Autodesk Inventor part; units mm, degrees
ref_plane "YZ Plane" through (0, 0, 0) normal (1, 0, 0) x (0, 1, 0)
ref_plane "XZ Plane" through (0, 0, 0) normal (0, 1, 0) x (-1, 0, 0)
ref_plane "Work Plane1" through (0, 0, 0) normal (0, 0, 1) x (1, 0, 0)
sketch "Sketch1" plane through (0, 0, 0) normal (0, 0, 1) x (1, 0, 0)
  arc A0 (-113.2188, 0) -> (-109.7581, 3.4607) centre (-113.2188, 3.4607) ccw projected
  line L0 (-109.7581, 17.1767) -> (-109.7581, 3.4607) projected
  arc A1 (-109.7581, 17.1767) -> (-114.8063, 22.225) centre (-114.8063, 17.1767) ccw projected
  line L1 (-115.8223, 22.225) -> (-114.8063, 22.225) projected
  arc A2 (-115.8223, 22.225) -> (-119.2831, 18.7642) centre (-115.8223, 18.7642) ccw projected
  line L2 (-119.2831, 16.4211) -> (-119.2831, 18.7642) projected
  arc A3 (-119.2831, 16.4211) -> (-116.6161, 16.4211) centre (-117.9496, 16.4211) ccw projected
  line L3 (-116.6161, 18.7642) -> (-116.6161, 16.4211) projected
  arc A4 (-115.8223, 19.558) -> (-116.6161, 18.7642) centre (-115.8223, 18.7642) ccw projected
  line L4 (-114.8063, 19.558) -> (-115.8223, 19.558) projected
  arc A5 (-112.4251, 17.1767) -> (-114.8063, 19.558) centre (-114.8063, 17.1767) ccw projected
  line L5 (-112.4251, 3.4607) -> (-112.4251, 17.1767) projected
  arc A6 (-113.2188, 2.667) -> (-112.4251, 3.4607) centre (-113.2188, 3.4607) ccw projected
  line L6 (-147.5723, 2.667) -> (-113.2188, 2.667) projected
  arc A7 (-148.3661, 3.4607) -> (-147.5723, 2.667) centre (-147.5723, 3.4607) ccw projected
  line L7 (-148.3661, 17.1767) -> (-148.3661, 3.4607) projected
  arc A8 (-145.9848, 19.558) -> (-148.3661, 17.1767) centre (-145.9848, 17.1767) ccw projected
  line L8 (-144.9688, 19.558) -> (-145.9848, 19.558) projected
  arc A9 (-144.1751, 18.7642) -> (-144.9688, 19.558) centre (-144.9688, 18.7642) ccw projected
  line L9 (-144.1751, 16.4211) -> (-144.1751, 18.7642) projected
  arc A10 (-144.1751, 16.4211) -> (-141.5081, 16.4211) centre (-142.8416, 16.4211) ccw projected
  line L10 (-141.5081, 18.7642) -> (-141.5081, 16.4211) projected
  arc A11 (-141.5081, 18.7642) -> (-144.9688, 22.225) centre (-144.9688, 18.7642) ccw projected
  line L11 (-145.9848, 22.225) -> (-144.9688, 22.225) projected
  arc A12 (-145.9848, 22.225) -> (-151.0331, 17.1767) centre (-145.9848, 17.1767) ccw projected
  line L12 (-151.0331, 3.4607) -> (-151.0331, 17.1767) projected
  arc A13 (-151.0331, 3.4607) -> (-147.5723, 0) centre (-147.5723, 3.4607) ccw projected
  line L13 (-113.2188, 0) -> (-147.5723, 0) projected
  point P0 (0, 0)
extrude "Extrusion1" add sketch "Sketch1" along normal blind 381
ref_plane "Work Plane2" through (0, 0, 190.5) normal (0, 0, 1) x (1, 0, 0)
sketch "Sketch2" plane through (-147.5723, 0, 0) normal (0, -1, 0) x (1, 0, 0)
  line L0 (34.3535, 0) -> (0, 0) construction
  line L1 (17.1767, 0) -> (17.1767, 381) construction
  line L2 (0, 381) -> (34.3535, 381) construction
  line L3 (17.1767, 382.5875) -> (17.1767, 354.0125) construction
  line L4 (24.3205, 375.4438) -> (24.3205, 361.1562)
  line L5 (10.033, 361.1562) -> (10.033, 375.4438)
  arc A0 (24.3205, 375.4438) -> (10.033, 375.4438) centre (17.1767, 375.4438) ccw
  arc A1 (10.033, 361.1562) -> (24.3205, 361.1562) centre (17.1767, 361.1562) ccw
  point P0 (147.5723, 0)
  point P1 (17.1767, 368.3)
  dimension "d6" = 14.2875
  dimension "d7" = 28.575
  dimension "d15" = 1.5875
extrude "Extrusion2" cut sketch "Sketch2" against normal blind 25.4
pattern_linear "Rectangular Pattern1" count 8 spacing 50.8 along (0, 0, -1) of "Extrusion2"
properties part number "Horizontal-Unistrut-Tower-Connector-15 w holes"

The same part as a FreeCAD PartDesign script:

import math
import FreeCAD as App
import Part
import Sketcher
Q = App.Units.Quantity

doc = App.newDocument("Part")
body = doc.addObject("PartDesign::Body", "Body")

# Sketch on XY plane
sketch1 = body.newObject("Sketcher::SketchObject", "Sketch")
sketch1.AttachmentSupport = (doc.getObject("XY_Plane"), [""])
sketch1.MapMode = "FlatFace"
sketch1.addGeometry([
    Part.LineSegment(App.Vector(-147.5723, 0, 0), App.Vector(-113.2188, 0, 0)),  # 0
    Part.ArcOfCircle(Part.Circle(App.Vector(-113.2188, 3.4607, 0), App.Vector(0, 0, 1), 3.4607), math.radians(-90), math.radians(0)),  # 1
    Part.LineSegment(App.Vector(-109.7581, 3.4607, 0), App.Vector(-109.7581, 17.1767, 0)),  # 2
    Part.ArcOfCircle(Part.Circle(App.Vector(-114.8063, 17.1767, 0), App.Vector(0, 0, 1), 5.0482), math.radians(0), math.radians(90)),  # 3
    Part.LineSegment(App.Vector(-114.8063, 22.225, 0), App.Vector(-115.8223, 22.225, 0)),  # 4
    Part.ArcOfCircle(Part.Circle(App.Vector(-115.8223, 18.7642, 0), App.Vector(0, 0, 1), 3.4608), math.radians(90), math.radians(180)),  # 5
    Part.LineSegment(App.Vector(-119.2831, 18.7642, 0), App.Vector(-119.2831, 16.4211, 0)),  # 6
    Part.ArcOfCircle(Part.Circle(App.Vector(-117.9496, 16.4211, 0), App.Vector(0, 0, 1), 1.3335), math.radians(180), math.radians(360)),  # 7
    Part.LineSegment(App.Vector(-116.6161, 16.4211, 0), App.Vector(-116.6161, 18.7642, 0)),  # 8
    Part.ArcOfCircle(Part.Circle(App.Vector(-115.8223, 18.7642, 0), App.Vector(0, 0, 1), 0.7938), math.radians(90), math.radians(180)),  # 9
    Part.LineSegment(App.Vector(-115.8223, 19.558, 0), App.Vector(-114.8063, 19.558, 0)),  # 10
    Part.ArcOfCircle(Part.Circle(App.Vector(-114.8063, 17.1767, 0), App.Vector(0, 0, 1), 2.3812), math.radians(0), math.radians(90)),  # 11
    Part.LineSegment(App.Vector(-112.4251, 17.1767, 0), App.Vector(-112.4251, 3.4607, 0)),  # 12
    Part.ArcOfCircle(Part.Circle(App.Vector(-113.2188, 3.4607, 0), App.Vector(0, 0, 1), 0.7937), math.radians(-90), math.radians(0)),  # 13
    Part.LineSegment(App.Vector(-113.2188, 2.667, 0), App.Vector(-147.5723, 2.667, 0)),  # 14
    Part.ArcOfCircle(Part.Circle(App.Vector(-147.5723, 3.4607, 0), App.Vector(0, 0, 1), 0.7938), math.radians(180), math.radians(270)),  # 15
    Part.LineSegment(App.Vector(-148.3661, 3.4607, 0), App.Vector(-148.3661, 17.1767, 0)),  # 16
    Part.ArcOfCircle(Part.Circle(App.Vector(-145.9848, 17.1767, 0), App.Vector(0, 0, 1), 2.3813), math.radians(90), math.radians(180)),  # 17
    Part.LineSegment(App.Vector(-145.9848, 19.558, 0), App.Vector(-144.9688, 19.558, 0)),  # 18
    Part.ArcOfCircle(Part.Circle(App.Vector(-144.9688, 18.7642, 0), App.Vector(0, 0, 1), 0.7937), math.radians(0), math.radians(90)),  # 19
    Part.LineSegment(App.Vector(-144.1751, 18.7642, 0), App.Vector(-144.1751, 16.4211, 0)),  # 20
    Part.ArcOfCircle(Part.Circle(App.Vector(-142.8416, 16.4211, 0), App.Vector(0, 0, 1), 1.3335), math.radians(180), math.radians(360)),  # 21
    Part.LineSegment(App.Vector(-141.5081, 16.4211, 0), App.Vector(-141.5081, 18.7642, 0)),  # 22
    Part.ArcOfCircle(Part.Circle(App.Vector(-144.9688, 18.7642, 0), App.Vector(0, 0, 1), 3.4607), math.radians(0), math.radians(90)),  # 23
    Part.LineSegment(App.Vector(-144.9688, 22.225, 0), App.Vector(-145.9848, 22.225, 0)),  # 24
    Part.ArcOfCircle(Part.Circle(App.Vector(-145.9848, 17.1767, 0), App.Vector(0, 0, 1), 5.0483), math.radians(90), math.radians(180)),  # 25
    Part.LineSegment(App.Vector(-151.0331, 17.1767, 0), App.Vector(-151.0331, 3.4607, 0)),  # 26
    Part.ArcOfCircle(Part.Circle(App.Vector(-147.5723, 3.4607, 0), App.Vector(0, 0, 1), 3.4608), math.radians(180), math.radians(270)),  # 27
], False)
sketch1.addConstraint([
    Sketcher.Constraint("Tangent", 0, 2, 1, 1),
    Sketcher.Constraint("Tangent", 1, 2, 2, 1),
    Sketcher.Constraint("Tangent", 2, 2, 3, 1),
    Sketcher.Constraint("Tangent", 3, 2, 4, 1),
    Sketcher.Constraint("Tangent", 4, 2, 5, 1),
    Sketcher.Constraint("Tangent", 5, 2, 6, 1),
    Sketcher.Constraint("Tangent", 6, 2, 7, 1),
    Sketcher.Constraint("Tangent", 7, 2, 8, 1),
    Sketcher.Constraint("Tangent", 8, 2, 9, 2),
    Sketcher.Constraint("Tangent", 9, 1, 10, 1),
    Sketcher.Constraint("Tangent", 10, 2, 11, 2),
    Sketcher.Constraint("Tangent", 11, 1, 12, 1),
    Sketcher.Constraint("Tangent", 12, 2, 13, 2),
    Sketcher.Constraint("Tangent", 13, 1, 14, 1),
    Sketcher.Constraint("Tangent", 14, 2, 15, 2),
    Sketcher.Constraint("Tangent", 15, 1, 16, 1),
    Sketcher.Constraint("Tangent", 16, 2, 17, 2),
    Sketcher.Constraint("Tangent", 17, 1, 18, 1),
    Sketcher.Constraint("Tangent", 18, 2, 19, 2),
    Sketcher.Constraint("Tangent", 19, 1, 20, 1),
    Sketcher.Constraint("Tangent", 20, 2, 21, 1),
    Sketcher.Constraint("Tangent", 21, 2, 22, 1),
    Sketcher.Constraint("Tangent", 22, 2, 23, 1),
    Sketcher.Constraint("Tangent", 23, 2, 24, 1),
    Sketcher.Constraint("Tangent", 24, 2, 25, 1),
    Sketcher.Constraint("Tangent", 25, 2, 26, 1),
    Sketcher.Constraint("Tangent", 26, 2, 27, 1),
    Sketcher.Constraint("Tangent", 27, 2, 0, 1),
    Sketcher.Constraint("Horizontal", 0),
    Sketcher.Constraint("Vertical", 2),
    Sketcher.Constraint("Horizontal", 4),
    Sketcher.Constraint("Vertical", 6),
    Sketcher.Constraint("Vertical", 8),
    Sketcher.Constraint("Horizontal", 10),
    Sketcher.Constraint("Vertical", 12),
    Sketcher.Constraint("Horizontal", 14),
    Sketcher.Constraint("Vertical", 16),
    Sketcher.Constraint("Horizontal", 18),
    Sketcher.Constraint("Vertical", 20),
    Sketcher.Constraint("Vertical", 22),
    Sketcher.Constraint("Horizontal", 24),
    Sketcher.Constraint("Vertical", 26),
    Sketcher.Constraint("Coincident", 9, 3, 5, 3),
    Sketcher.Constraint("Coincident", 11, 3, 3, 3),
    Sketcher.Constraint("Coincident", 13, 3, 1, 3),
    Sketcher.Constraint("Coincident", 23, 3, 19, 3),
    Sketcher.Constraint("Coincident", 25, 3, 17, 3),
    Sketcher.Constraint("Coincident", 27, 3, 15, 3),
    Sketcher.Constraint("Equal", 1, 5),
    Sketcher.Constraint("Equal", 13, 15),
    Sketcher.Constraint("Equal", 11, 17),
    Sketcher.Constraint("Equal", 15, 19),
    Sketcher.Constraint("PointOnObject", 0, 2, -1),
    Sketcher.Constraint("Horizontal", 11, 3, 17, 3),
    Sketcher.Constraint("Horizontal", 7, 3, 21, 3),
    Sketcher.Constraint("Equal", 10, 18),
    Sketcher.Constraint("Radius", 9, Q("0.031252 in")),
    Sketcher.Constraint("Radius", 11, Q("0.093748 in")),
    Sketcher.Constraint("DistanceX", 4, 2, 4, 1, Q("0.04 in")),
    Sketcher.Constraint("DistanceY", 2, 1, 2, 2, Q("0.54 in")),
    Sketcher.Constraint("Radius", 7, Q("0.0525 in")),
    Sketcher.Constraint("DistanceX", 15, 3, 5, 3, Q("1.25 in")),
    Sketcher.Constraint("DistanceY", 6, 2, 6, 1, 2.343),
    Sketcher.Constraint("DistanceX", 1, 3, -1, 1, 113.2188),
])
pad1 = body.newObject("PartDesign::Pad", "Pad")
pad1.Profile = sketch1
pad1.Length = Q("15 in")

# Sketch on XZ plane
sketch2 = body.newObject("Sketcher::SketchObject", "Sketch001")
sketch2.AttachmentSupport = (doc.getObject("XZ_Plane"), [""])
sketch2.MapMode = "FlatFace"
sketch2.addGeometry([
    Part.LineSegment(App.Vector(-123.2518, 361.1562, 0), App.Vector(-123.2518, 375.4438, 0)),
    Part.ArcOfCircle(Part.Circle(App.Vector(-130.3956, 375.4438, 0), App.Vector(0, 0, 1), 7.1438), math.radians(0), math.radians(180)),
    Part.LineSegment(App.Vector(-137.5393, 375.4438, 0), App.Vector(-137.5393, 361.1562, 0)),
    Part.ArcOfCircle(Part.Circle(App.Vector(-130.3956, 361.1562, 0), App.Vector(0, 0, 1), 7.1437), math.radians(180), math.radians(360)),
], False)
sketch2.addConstraint([
    Sketcher.Constraint("Tangent", 0, 2, 1, 1),
    Sketcher.Constraint("Tangent", 1, 2, 2, 1),
    Sketcher.Constraint("Tangent", 2, 2, 3, 1),
    Sketcher.Constraint("Tangent", 3, 2, 0, 1),
    Sketcher.Constraint("Vertical", 0),
    Sketcher.Constraint("Vertical", 2),
    Sketcher.Constraint("Radius", 1, Q("0.281252 in")),
    Sketcher.Constraint("DistanceY", 0, 1, 0, 2, Q("0.5625 in")),
    Sketcher.Constraint("DistanceY", -1, 1, 1, 3, Q("14.781252 in")),
    Sketcher.Constraint("DistanceX", 1, 3, -1, 1, 130.3956),
])
pocket1 = body.newObject("PartDesign::Pocket", "Pocket")
pocket1.Profile = sketch2
pocket1.Length = Q("1 in")
doc.recompute()

linearpattern = body.newObject("PartDesign::LinearPattern", "LinearPattern")
linearpattern.Originals = [pocket1]
linearpattern.Direction = (doc.getObject("Z_Axis"), [""])
linearpattern.Mode = "offset"
linearpattern.Offset = Q("2 in")
linearpattern.Occurrences = 8
linearpattern.Reversed = True
body.Tip = linearpattern

doc.recompute()
